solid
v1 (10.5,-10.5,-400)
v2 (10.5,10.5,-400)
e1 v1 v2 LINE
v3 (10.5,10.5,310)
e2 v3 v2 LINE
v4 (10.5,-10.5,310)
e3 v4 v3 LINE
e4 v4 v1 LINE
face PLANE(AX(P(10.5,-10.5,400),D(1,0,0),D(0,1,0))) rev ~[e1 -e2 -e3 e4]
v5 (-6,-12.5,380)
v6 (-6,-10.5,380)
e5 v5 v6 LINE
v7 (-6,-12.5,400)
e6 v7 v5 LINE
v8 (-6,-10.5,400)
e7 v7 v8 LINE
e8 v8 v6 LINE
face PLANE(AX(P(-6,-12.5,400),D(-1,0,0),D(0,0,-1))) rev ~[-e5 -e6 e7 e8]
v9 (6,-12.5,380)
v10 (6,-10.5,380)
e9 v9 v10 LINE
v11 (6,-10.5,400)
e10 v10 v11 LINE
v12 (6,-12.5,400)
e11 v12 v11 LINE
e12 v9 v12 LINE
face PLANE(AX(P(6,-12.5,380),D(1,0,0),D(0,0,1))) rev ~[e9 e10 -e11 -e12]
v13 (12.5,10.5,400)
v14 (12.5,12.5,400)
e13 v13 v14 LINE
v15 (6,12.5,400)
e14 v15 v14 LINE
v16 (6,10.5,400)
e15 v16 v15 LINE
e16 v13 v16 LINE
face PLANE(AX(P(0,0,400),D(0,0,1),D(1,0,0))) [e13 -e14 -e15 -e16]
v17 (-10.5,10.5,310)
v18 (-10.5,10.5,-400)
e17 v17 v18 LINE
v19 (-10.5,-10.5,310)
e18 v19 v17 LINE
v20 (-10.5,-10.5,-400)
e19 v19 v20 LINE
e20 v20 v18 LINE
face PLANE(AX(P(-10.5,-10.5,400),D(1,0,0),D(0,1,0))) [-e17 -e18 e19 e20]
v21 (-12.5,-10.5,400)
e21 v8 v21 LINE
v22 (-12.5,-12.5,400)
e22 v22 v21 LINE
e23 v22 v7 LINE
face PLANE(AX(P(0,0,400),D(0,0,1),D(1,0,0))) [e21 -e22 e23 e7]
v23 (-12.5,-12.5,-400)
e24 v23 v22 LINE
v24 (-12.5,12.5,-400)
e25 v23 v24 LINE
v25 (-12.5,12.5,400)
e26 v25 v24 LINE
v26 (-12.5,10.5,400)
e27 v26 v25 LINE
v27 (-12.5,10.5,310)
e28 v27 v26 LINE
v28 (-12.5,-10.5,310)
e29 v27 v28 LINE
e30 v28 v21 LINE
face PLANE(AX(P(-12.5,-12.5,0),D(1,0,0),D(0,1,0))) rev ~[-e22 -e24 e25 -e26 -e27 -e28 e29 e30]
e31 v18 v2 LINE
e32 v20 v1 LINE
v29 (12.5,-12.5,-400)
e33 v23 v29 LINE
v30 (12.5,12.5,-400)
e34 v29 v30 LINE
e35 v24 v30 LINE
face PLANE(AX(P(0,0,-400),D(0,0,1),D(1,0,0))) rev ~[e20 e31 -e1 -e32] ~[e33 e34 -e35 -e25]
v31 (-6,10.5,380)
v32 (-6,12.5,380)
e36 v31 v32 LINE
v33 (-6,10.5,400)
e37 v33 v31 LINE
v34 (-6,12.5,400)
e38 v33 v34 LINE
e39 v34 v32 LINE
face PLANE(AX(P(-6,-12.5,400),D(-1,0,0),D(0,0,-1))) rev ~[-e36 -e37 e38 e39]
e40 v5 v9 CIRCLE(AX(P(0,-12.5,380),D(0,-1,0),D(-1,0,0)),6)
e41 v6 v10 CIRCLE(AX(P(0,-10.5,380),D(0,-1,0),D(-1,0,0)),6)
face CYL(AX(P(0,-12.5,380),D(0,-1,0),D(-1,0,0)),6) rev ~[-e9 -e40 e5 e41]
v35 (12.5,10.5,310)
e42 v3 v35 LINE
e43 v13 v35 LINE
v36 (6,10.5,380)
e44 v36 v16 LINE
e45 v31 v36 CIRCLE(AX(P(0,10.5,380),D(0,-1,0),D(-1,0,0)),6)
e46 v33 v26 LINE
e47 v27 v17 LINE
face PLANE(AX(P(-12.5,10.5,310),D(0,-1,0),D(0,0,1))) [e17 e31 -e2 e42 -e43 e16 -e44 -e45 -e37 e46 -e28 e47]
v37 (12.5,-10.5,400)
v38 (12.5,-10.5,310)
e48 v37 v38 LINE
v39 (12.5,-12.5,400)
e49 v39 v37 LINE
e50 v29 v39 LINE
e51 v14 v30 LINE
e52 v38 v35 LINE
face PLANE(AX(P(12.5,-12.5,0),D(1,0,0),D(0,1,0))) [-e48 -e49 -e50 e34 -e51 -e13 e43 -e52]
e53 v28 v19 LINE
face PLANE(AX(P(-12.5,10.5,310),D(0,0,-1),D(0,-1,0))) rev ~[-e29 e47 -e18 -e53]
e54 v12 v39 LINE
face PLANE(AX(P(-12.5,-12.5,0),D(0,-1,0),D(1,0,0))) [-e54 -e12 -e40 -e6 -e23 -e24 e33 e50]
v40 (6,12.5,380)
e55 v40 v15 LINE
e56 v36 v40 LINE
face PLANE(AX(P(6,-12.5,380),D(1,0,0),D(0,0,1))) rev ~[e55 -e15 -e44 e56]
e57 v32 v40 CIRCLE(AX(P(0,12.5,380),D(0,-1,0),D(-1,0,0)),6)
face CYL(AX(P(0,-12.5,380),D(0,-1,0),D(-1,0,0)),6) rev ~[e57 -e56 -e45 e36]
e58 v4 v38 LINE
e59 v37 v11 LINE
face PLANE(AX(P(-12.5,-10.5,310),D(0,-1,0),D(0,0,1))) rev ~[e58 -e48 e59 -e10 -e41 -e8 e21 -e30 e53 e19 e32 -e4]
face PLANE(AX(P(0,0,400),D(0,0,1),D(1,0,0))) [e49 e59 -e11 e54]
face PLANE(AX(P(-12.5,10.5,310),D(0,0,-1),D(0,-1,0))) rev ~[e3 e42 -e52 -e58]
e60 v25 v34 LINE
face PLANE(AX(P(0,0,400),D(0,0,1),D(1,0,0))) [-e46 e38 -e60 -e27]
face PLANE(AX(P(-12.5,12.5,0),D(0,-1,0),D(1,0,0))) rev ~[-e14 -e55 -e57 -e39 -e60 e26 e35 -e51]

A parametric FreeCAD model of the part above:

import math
import FreeCAD as App
import Part
import Sketcher
from FreeCAD import Vector


def add_polygon(sketch, points):
    """Adds a closed chain of lines whose ends are joined by coincident constraints."""
    first, n = sketch.GeometryCount, len(points)
    for a, b in zip(points, points[1:] + points[:1]):
        sketch.addGeometry(Part.LineSegment(App.Vector(*a, 0), App.Vector(*b, 0)), False)
    for i in range(n):
        sketch.addConstraint(Sketcher.Constraint("Coincident", first + i, 2, first + (i + 1) % n, 1))

doc = App.newDocument("Part")
body = doc.addObject("PartDesign::Body", "Body")

# Sketch on XY plane
sketch1 = body.newObject("Sketcher::SketchObject", "Sketch")
sketch1.AttachmentSupport = (doc.getObject("XY_Plane"), [""])
sketch1.MapMode = "FlatFace"
add_polygon(sketch1, [(-12, 12), (-12, -12), (12, -12), (12, 12)])  # lines 0-3
sketch1.addConstraint([
    Sketcher.Constraint("Vertical", 0),
    Sketcher.Constraint("Horizontal", 1),
    Sketcher.Constraint("Vertical", 2),
    Sketcher.Constraint("Horizontal", 3),
    Sketcher.Constraint("Symmetric", 0, 2, 2, 2, -1, 1),
    Sketcher.Constraint("Equal", 3, 0),
    Sketcher.Constraint("DistanceX", 1, 1, 1, 2, 25.0),
])
pad1 = body.newObject("PartDesign::Pad", "Pad")
pad1.Profile = sketch1
pad1.Length = 800
pad1.Midplane = True

# Sketch on XY plane
sketch2 = body.newObject("Sketcher::SketchObject", "Sketch001")
sketch2.AttachmentSupport = (doc.getObject("XY_Plane"), [""])
sketch2.MapMode = "FlatFace"
sketch2.AttachmentOffset = App.Placement(Vector(0, 0, 400), App.Rotation())
add_polygon(sketch2, [(-10, 10), (-10, -10), (10, -10), (10, 10)])  # lines 0-3
sketch2.addConstraint([
    Sketcher.Constraint("Vertical", 0),
    Sketcher.Constraint("Horizontal", 1),
    Sketcher.Constraint("Vertical", 2),
    Sketcher.Constraint("Horizontal", 3),
    Sketcher.Constraint("Symmetric", 0, 2, 2, 2, -1, 1),
    Sketcher.Constraint("Equal", 3, 0),
    Sketcher.Constraint("DistanceX", 1, 1, 1, 2, 21.0),
])
pocket1 = body.newObject("PartDesign::Pocket", "Pocket")
pocket1.Profile = sketch2
pocket1.Type = "ThroughAll"

# Sketch on YZ plane
sketch3 = body.newObject("Sketcher::SketchObject", "Sketch002")
sketch3.AttachmentSupport = (doc.getObject("YZ_Plane"), [""])
sketch3.MapMode = "FlatFace"
sketch3.AttachmentOffset = App.Placement(Vector(0, 0, -12.5), App.Rotation())
add_polygon(sketch3, [(10, 400), (10, 310), (-10, 310), (-10, 400)])  # lines 0-3
sketch3.addConstraint([
    Sketcher.Constraint("Vertical", 0),
    Sketcher.Constraint("Horizontal", 1),
    Sketcher.Constraint("Vertical", 2),
    Sketcher.Constraint("Horizontal", 3),
    Sketcher.Constraint("DistanceX", 1, 2, 1, 1, 21.0),
    Sketcher.Constraint("DistanceY", 0, 2, 0, 1, 90.0),
    Sketcher.Constraint("DistanceY", -1, 1, 0, 2, 310.0),
    Sketcher.Constraint("DistanceX", -1, 1, 0, 2, 10.5),
])
pocket2 = body.newObject("PartDesign::Pocket", "Pocket001")
pocket2.Profile = sketch3
pocket2.Type = "ThroughAll"
pocket2.Reversed = True

# Sketch on XZ plane
sketch4 = body.newObject("Sketcher::SketchObject", "Sketch003")
sketch4.AttachmentSupport = (doc.getObject("XZ_Plane"), [""])
sketch4.MapMode = "FlatFace"
sketch4.AttachmentOffset = App.Placement(Vector(0, 0, 12.5), App.Rotation())
sketch4.addGeometry([
    Part.LineSegment(Vector(6, 380, 0), Vector(6, 400, 0)),
    Part.LineSegment(Vector(6, 400, 0), Vector(-6, 400, 0)),
    Part.LineSegment(Vector(-6, 400, 0), Vector(-6, 380, 0)),
    Part.ArcOfCircle(Part.Circle(Vector(0, 380, 0), Vector(0, 0, 1), 6), math.radians(180), math.radians(360)),
], False)
sketch4.addConstraint([
    Sketcher.Constraint("Coincident", 0, 2, 1, 1),
    Sketcher.Constraint("Coincident", 1, 2, 2, 1),
    Sketcher.Constraint("Tangent", 2, 2, 3, 1),
    Sketcher.Constraint("Tangent", 3, 2, 0, 1),
    Sketcher.Constraint("Vertical", 0),
    Sketcher.Constraint("Horizontal", 1),
    Sketcher.Constraint("Vertical", 2),
    Sketcher.Constraint("PointOnObject", 3, 3, -2),
    Sketcher.Constraint("Radius", 3, 6.0),
    Sketcher.Constraint("DistanceY", 0, 1, 0, 2, 20.0),
    Sketcher.Constraint("DistanceY", -1, 1, 3, 3, 380.0),
])
pocket3 = body.newObject("PartDesign::Pocket", "Pocket002")
pocket3.Profile = sketch4
pocket3.Type = "ThroughAll"

doc.recompute()
